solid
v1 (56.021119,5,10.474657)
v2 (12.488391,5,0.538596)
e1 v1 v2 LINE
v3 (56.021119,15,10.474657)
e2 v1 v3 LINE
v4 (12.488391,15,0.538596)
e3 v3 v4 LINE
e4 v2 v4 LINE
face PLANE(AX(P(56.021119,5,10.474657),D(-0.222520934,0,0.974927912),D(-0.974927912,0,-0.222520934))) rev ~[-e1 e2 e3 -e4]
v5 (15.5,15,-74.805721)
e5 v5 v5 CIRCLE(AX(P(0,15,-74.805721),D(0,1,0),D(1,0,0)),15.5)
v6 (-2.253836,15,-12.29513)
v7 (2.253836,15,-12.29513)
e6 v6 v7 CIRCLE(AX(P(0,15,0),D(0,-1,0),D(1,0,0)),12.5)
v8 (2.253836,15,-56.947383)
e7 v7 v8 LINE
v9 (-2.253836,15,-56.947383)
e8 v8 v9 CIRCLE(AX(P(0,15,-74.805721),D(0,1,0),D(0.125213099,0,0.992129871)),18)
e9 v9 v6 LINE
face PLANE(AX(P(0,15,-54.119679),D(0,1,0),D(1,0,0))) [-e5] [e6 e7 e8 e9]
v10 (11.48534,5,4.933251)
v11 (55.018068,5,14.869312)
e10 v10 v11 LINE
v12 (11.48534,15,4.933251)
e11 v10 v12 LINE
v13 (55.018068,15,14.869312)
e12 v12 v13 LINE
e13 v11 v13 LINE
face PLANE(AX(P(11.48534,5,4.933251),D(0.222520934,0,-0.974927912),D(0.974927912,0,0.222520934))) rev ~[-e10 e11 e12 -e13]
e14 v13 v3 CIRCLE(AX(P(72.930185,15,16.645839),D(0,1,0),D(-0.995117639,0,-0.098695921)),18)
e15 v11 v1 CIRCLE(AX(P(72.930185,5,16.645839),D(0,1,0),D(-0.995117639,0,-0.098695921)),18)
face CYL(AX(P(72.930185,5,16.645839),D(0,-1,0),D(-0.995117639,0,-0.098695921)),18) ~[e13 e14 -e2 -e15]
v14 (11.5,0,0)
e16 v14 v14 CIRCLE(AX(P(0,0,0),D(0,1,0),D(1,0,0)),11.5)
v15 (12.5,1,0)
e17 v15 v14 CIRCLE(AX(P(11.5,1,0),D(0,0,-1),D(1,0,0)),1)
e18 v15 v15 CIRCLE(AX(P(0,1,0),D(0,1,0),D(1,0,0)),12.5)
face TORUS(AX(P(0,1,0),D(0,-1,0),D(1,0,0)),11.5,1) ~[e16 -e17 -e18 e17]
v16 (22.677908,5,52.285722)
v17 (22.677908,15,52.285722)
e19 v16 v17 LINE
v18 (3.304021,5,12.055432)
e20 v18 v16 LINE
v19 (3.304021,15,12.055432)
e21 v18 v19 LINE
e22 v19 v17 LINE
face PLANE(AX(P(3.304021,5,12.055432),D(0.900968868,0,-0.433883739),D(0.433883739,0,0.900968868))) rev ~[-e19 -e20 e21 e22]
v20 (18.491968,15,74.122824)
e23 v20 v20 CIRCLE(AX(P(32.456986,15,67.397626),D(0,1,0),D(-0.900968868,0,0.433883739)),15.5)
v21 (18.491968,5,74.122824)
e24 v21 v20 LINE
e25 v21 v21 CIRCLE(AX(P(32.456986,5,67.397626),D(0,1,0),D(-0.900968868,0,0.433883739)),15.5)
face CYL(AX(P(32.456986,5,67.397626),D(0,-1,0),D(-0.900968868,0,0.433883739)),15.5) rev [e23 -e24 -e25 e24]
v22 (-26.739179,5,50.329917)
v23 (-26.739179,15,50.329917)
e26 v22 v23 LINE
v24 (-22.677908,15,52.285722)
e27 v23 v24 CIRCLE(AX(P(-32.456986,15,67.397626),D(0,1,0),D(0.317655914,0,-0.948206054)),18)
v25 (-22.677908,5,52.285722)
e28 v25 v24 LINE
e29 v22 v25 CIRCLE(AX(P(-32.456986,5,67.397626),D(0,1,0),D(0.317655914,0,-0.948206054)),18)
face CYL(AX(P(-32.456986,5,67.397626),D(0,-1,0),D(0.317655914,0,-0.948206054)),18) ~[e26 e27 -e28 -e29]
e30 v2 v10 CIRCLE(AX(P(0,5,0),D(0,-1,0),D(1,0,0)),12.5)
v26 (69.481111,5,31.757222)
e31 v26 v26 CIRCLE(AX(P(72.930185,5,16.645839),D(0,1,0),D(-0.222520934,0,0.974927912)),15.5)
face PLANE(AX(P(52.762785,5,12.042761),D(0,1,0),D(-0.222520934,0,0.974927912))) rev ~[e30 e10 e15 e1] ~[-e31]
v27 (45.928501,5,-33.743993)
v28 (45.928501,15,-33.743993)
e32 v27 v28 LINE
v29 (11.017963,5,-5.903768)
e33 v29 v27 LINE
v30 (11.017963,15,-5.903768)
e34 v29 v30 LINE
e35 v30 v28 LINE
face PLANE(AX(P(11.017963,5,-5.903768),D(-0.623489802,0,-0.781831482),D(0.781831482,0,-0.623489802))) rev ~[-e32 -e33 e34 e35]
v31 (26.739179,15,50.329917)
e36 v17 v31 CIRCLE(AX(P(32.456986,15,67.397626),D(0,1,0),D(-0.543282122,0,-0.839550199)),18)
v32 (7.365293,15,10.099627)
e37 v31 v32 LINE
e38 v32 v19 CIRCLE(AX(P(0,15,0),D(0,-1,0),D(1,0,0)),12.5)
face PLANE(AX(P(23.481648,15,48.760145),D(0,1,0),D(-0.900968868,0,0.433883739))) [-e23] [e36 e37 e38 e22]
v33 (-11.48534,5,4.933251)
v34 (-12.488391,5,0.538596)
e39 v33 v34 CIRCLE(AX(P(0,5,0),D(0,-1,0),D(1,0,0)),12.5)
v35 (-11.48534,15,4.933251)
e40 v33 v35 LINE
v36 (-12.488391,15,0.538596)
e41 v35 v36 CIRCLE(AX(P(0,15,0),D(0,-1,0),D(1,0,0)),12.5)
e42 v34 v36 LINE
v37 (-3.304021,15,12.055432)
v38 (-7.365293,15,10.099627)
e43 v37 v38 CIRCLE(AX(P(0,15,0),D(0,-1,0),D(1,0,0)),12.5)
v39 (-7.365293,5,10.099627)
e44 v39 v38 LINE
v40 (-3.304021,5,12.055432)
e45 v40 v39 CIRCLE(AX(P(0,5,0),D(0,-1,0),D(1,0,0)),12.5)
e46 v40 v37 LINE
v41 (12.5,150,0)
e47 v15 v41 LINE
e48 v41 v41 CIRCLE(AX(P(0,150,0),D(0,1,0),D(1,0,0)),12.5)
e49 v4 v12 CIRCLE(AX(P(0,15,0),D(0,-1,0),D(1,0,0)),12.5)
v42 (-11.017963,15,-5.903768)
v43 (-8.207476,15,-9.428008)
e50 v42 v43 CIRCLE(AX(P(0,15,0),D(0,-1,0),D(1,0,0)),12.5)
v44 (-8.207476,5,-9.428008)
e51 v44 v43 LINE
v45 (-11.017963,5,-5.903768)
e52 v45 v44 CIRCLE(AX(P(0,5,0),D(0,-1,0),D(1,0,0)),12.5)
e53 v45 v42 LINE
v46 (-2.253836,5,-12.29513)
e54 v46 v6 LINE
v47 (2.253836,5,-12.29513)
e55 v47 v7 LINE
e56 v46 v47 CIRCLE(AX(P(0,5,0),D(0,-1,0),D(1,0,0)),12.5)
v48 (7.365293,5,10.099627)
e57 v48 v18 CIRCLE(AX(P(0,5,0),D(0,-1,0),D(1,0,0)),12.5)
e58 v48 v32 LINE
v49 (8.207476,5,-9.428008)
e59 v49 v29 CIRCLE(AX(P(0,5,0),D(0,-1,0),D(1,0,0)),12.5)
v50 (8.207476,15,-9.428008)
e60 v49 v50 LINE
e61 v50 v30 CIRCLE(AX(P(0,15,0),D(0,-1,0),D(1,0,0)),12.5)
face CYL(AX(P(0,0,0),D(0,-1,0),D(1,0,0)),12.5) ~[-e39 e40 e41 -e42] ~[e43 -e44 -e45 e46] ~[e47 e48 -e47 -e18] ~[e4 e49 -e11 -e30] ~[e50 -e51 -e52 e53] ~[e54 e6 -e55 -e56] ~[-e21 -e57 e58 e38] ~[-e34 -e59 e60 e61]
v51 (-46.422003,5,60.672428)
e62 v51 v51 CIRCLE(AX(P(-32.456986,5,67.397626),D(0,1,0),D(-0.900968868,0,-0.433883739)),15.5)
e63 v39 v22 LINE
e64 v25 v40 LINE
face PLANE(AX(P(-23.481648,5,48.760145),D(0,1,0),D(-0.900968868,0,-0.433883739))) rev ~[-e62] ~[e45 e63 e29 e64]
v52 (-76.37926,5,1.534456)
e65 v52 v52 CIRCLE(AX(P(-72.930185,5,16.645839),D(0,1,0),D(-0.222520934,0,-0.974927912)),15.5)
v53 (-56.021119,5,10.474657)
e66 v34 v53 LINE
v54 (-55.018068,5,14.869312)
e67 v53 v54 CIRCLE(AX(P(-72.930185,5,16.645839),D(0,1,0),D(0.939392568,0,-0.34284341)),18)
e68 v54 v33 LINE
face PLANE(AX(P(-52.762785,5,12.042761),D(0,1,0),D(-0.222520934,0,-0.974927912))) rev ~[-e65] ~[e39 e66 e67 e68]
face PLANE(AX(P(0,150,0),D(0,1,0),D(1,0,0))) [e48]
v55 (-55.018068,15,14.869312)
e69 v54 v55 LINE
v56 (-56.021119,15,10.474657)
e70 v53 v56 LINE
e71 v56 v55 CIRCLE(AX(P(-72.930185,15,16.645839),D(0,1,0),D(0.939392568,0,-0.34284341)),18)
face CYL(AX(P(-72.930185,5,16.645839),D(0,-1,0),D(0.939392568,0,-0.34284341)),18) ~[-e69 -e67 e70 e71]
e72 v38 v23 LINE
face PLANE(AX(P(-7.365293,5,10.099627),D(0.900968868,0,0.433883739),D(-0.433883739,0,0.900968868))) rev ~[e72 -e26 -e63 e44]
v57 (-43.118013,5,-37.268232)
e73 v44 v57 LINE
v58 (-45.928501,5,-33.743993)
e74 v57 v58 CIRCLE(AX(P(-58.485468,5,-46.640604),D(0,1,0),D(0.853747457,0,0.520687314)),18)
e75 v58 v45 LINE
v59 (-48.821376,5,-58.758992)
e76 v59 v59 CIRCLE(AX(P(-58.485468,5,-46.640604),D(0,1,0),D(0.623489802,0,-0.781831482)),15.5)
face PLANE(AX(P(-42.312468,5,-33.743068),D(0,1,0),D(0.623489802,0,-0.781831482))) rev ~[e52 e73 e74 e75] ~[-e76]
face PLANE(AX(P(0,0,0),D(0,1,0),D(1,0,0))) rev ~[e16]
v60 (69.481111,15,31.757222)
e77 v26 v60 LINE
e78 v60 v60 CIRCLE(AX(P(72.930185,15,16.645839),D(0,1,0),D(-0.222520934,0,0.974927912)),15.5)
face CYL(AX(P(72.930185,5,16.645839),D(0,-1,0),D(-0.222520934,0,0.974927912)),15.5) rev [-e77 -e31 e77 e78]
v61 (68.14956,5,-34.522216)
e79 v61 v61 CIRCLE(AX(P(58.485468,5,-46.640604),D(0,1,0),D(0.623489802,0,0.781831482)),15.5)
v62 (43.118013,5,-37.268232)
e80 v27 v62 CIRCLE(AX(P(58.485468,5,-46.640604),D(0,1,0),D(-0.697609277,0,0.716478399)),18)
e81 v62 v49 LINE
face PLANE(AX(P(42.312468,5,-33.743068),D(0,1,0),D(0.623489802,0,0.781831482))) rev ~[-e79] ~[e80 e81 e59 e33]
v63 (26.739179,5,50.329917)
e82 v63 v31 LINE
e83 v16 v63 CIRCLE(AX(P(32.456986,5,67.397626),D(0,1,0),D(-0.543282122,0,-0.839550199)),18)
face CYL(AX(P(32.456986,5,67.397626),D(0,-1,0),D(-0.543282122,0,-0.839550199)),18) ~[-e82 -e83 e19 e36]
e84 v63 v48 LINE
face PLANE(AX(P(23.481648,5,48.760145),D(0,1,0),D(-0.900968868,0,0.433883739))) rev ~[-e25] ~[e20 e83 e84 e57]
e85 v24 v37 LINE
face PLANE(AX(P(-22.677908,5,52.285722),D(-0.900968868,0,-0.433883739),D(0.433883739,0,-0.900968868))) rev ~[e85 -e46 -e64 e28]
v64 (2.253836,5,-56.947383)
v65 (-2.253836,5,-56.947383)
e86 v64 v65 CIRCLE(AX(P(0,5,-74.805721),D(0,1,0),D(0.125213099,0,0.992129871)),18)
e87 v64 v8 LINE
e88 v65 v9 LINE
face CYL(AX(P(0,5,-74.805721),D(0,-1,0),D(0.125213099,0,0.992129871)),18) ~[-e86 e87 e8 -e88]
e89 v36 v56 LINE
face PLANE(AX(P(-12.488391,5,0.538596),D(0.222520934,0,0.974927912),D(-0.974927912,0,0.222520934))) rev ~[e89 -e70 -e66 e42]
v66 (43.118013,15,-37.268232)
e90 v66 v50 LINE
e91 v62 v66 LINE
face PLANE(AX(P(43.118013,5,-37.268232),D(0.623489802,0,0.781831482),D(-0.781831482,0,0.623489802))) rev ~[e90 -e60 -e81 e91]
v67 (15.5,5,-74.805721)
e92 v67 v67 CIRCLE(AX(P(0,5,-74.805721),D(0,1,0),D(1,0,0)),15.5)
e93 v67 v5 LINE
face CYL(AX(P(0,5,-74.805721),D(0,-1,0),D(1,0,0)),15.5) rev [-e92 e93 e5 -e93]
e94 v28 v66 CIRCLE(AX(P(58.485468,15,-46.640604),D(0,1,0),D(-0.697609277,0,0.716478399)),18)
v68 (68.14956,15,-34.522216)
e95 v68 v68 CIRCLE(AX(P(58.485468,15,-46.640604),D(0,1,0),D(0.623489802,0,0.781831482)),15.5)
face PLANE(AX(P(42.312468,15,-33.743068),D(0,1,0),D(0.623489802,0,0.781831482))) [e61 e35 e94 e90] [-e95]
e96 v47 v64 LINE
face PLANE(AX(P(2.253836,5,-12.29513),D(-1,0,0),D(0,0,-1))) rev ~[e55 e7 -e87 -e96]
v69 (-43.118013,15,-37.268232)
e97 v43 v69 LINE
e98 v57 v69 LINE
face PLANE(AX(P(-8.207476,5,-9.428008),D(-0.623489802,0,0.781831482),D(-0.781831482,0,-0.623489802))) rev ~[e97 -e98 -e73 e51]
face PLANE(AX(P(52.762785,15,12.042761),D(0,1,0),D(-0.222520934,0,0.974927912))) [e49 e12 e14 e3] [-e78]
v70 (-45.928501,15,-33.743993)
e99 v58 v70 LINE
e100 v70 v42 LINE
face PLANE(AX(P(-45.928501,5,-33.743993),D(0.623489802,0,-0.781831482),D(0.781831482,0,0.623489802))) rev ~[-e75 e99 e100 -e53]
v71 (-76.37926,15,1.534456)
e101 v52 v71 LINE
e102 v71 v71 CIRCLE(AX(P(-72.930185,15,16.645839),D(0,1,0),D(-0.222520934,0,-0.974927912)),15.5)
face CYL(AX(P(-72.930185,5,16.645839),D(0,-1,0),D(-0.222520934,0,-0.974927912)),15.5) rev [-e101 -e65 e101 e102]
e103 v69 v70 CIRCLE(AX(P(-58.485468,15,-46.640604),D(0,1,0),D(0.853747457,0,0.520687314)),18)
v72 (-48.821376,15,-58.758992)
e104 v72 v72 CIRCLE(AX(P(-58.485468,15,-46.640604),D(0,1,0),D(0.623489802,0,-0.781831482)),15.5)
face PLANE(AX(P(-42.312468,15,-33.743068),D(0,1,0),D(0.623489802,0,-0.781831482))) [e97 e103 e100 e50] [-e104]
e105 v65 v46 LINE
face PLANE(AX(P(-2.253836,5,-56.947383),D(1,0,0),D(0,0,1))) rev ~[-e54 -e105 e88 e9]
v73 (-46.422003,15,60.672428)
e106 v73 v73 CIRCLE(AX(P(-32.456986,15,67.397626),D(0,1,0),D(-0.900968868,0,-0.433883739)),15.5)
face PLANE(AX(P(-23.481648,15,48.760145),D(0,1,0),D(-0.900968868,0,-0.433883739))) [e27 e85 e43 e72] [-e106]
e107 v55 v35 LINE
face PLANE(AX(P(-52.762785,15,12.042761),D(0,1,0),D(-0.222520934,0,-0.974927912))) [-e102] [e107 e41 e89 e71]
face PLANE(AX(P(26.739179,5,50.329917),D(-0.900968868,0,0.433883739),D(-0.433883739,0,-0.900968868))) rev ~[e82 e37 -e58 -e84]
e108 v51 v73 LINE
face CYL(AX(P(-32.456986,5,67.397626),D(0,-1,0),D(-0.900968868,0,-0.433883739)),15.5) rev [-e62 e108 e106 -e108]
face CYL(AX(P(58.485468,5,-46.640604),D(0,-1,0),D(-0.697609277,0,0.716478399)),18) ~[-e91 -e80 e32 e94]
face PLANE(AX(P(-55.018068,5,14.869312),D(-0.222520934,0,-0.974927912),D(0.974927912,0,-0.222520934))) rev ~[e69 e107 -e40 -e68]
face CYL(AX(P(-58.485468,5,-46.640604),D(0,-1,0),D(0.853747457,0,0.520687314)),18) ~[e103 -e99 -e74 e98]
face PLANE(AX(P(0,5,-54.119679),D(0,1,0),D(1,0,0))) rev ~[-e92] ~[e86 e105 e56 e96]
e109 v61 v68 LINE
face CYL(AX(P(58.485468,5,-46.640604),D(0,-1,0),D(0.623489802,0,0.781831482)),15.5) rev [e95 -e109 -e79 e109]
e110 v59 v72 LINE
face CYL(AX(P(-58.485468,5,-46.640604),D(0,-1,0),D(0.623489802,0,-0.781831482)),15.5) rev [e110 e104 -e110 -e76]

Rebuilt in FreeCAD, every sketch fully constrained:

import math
import FreeCAD as App
import Part
import Sketcher


def edges_at(feature, points):
    """Names of the edges that pass closest to the given points."""
    edges = feature.Shape.Edges
    near = lambda p: min(range(len(edges)), key=lambda i: edges[i].distToShape(Part.Vertex(*p))[0])
    return sorted({f"Edge{near(p) + 1}" for p in points})

doc = App.newDocument("Part")
body = doc.addObject("PartDesign::Body", "Body")

# Sketch on XZ plane
sketch1 = body.newObject("Sketcher::SketchObject", "Sketch")
sketch1.AttachmentSupport = (doc.getObject("XZ_Plane"), [""])
sketch1.MapMode = "FlatFace"
sketch1.addGeometry(Part.Circle(App.Vector(0, 0, 0), App.Vector(0, 0, 1), 12.5), False)
sketch1.addConstraint(Sketcher.Constraint("Coincident", 0, 3, -1, 1))
sketch1.addConstraint(Sketcher.Constraint("Diameter", 0, 25.0))
pad1 = body.newObject("PartDesign::Pad", "Pad")
pad1.Profile = sketch1
pad1.Length = 150
pad1.Reversed = True

# Sketch on XZ plane
sketch2 = body.newObject("Sketcher::SketchObject", "Sketch001")
sketch2.AttachmentSupport = (doc.getObject("XZ_Plane"), [""])
sketch2.MapMode = "FlatFace"
sketch2.AttachmentOffset = App.Placement(App.Vector(0, 0, -5), App.Rotation())
sketch2.addGeometry(Part.LineSegment(App.Vector(-2.253836, -56.947383, 0), App.Vector(-2.253836, -12.29513, 0)), False)
sketch2.addGeometry(Part.LineSegment(App.Vector(-2.253836, -12.29513, 0), App.Vector(2.253836, -12.29513, 0)), False)
sketch2.addGeometry(Part.LineSegment(App.Vector(2.253836, -12.29513, 0), App.Vector(2.253836, -56.947383, 0)), False)
sketch2.addGeometry(Part.ArcOfCircle(Part.Circle(App.Vector(0, -74.805721, 0), App.Vector(0, 0, 1), 18), math.radians(97.193062), math.radians(442.806938)), False)
sketch2.addGeometry(Part.Circle(App.Vector(0, -74.805721, 0), App.Vector(0, 0, 1), 15.5), False)
sketch2.addConstraint(Sketcher.Constraint("Coincident", 0, 2, 1, 1))
sketch2.addConstraint(Sketcher.Constraint("Coincident", 1, 2, 2, 1))
sketch2.addConstraint(Sketcher.Constraint("Coincident", 2, 2, 3, 2))
sketch2.addConstraint(Sketcher.Constraint("Coincident", 3, 1, 0, 1))
sketch2.addConstraint(Sketcher.Constraint("Vertical", 0))
sketch2.addConstraint(Sketcher.Constraint("Horizontal", 1))
sketch2.addConstraint(Sketcher.Constraint("Vertical", 2))
sketch2.addConstraint(Sketcher.Constraint("Coincident", 4, 3, 3, 3))
sketch2.addConstraint(Sketcher.Constraint("Symmetric", 2, 2, 3, 1, -2))
sketch2.addConstraint(Sketcher.Constraint("Diameter", 4, 31.0))
sketch2.addConstraint(Sketcher.Constraint("Radius", 3, 18.0))
sketch2.addConstraint(Sketcher.Constraint("DistanceX", 1, 1, 1, 2, 4.507672))
sketch2.addConstraint(Sketcher.Constraint("DistanceY", 0, 1, 0, 2, 44.652253))
sketch2.addConstraint(Sketcher.Constraint("DistanceY", 3, 3, -1, 1, 74.805721))
pad2 = body.newObject("PartDesign::Pad", "Pad001")
pad2.Profile = sketch2
pad2.Length = 10
pad2.Reversed = True
doc.recompute()

polarpattern = body.newObject("PartDesign::PolarPattern", "PolarPattern")
polarpattern.Originals = [pad2]
polarpattern.Axis = (doc.getObject("Y_Axis"), [""])
polarpattern.Angle = 360
polarpattern.Occurrences = 7
body.Tip = polarpattern
doc.recompute()

fillet = body.newObject("PartDesign::Fillet", "Fillet")
fillet.Base = (polarpattern, edges_at(polarpattern, [(-12.5, 0, 0)]))
fillet.Radius = 1

doc.recompute()
